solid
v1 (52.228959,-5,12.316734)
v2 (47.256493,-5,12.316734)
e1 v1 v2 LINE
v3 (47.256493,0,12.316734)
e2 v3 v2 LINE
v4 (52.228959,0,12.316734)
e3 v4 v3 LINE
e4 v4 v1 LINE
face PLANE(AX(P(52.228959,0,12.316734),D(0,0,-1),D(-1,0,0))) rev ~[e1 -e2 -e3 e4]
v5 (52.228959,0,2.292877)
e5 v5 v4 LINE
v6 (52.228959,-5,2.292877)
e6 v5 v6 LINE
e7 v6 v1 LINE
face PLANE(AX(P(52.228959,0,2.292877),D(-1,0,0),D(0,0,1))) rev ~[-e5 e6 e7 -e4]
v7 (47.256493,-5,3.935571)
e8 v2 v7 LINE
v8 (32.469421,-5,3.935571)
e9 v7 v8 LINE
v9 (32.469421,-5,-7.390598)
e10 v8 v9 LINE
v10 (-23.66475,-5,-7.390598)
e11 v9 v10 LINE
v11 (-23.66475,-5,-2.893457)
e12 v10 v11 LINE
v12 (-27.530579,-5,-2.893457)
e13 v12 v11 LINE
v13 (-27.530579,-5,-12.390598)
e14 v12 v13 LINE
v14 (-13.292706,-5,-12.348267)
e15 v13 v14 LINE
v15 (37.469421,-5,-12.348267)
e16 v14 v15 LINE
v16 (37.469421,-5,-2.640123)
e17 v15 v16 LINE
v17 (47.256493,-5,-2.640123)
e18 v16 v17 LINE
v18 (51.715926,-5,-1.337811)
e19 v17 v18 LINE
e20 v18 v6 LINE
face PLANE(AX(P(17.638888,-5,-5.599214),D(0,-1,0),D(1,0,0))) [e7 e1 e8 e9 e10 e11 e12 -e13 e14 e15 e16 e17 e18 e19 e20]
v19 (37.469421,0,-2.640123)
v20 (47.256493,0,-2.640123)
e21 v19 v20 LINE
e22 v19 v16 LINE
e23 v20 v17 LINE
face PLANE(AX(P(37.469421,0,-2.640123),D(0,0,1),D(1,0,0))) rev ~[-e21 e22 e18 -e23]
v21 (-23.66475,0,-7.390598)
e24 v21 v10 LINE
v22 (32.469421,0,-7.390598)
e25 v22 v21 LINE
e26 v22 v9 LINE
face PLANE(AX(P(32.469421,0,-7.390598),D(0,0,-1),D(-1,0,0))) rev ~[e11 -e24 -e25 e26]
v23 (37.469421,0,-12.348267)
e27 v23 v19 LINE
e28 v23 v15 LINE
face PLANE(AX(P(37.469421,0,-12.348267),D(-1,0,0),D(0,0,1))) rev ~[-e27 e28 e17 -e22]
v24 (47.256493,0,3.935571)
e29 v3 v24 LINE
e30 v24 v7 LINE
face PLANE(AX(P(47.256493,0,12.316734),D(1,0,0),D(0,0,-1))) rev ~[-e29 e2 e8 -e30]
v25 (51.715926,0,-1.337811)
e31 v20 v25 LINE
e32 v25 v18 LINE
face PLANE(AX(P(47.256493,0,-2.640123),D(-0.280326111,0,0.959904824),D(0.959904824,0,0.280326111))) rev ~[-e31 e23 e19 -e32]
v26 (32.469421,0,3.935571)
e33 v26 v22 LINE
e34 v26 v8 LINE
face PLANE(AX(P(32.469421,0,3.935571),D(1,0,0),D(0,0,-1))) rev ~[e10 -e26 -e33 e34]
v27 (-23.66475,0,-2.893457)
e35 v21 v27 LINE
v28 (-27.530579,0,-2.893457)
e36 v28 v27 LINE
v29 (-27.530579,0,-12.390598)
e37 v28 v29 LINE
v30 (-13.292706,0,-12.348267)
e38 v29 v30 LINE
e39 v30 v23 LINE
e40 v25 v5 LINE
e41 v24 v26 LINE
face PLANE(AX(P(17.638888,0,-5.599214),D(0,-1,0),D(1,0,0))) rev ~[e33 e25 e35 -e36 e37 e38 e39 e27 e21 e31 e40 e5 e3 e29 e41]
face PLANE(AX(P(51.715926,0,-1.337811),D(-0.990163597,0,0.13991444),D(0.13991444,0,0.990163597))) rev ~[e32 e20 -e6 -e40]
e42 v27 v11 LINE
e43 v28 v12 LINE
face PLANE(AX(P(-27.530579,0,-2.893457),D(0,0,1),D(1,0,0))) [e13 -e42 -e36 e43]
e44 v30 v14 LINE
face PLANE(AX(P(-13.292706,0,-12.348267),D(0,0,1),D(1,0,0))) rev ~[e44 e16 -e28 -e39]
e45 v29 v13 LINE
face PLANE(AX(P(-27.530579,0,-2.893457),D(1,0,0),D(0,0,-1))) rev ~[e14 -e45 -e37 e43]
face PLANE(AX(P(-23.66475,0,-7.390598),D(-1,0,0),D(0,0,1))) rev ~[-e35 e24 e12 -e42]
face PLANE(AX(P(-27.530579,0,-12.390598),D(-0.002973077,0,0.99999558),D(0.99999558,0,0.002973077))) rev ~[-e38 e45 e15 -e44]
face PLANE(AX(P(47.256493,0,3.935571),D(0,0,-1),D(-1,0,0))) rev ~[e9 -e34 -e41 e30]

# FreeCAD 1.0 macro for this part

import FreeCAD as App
import Part
import Sketcher
Q = App.Units.Quantity

doc = App.newDocument("Part")
body = doc.addObject("PartDesign::Body", "Body")

sketch1 = body.newObject("Sketcher::SketchObject", "Sketch")
sketch1.AttachmentSupport = (doc.getObject("XZ_Plane"), [""])
sketch1.MapMode = "FlatFace"
sketch1.addGeometry(Part.LineSegment(App.Vector(-27.530579, -12.390598, 0), App.Vector(-13.292706, -12.348267, 0)), False)
sketch1.addGeometry(Part.LineSegment(App.Vector(-13.292706, -12.348267, 0), App.Vector(37.469421, -12.348267, 0)), False)
sketch1.addGeometry(Part.LineSegment(App.Vector(37.469421, -12.348267, 0), App.Vector(37.469421, -2.640123, 0)), False)
sketch1.addGeometry(Part.LineSegment(App.Vector(37.469421, -2.640123, 0), App.Vector(47.256493, -2.640123, 0)), False)
sketch1.addGeometry(Part.LineSegment(App.Vector(47.256493, -2.640123, 0), App.Vector(51.715926, -1.337811, 0)), False)
sketch1.addGeometry(Part.LineSegment(App.Vector(51.715926, -1.337811, 0), App.Vector(52.228959, 2.292877, 0)), False)
sketch1.addGeometry(Part.LineSegment(App.Vector(52.228959, 2.292877, 0), App.Vector(52.228959, 12.316734, 0)), False)
sketch1.addGeometry(Part.LineSegment(App.Vector(52.228959, 12.316734, 0), App.Vector(47.256493, 12.316734, 0)), False)
sketch1.addGeometry(Part.LineSegment(App.Vector(47.256493, 12.316734, 0), App.Vector(47.256493, 3.935571, 0)), False)
sketch1.addGeometry(Part.LineSegment(App.Vector(47.256493, 3.935571, 0), App.Vector(32.469421, 3.935571, 0)), False)
sketch1.addGeometry(Part.LineSegment(App.Vector(32.469421, 3.935571, 0), App.Vector(32.469421, -7.390598, 0)), False)
sketch1.addGeometry(Part.LineSegment(App.Vector(32.469421, -7.390598, 0), App.Vector(-23.66475, -7.390598, 0)), False)
sketch1.addGeometry(Part.LineSegment(App.Vector(-23.66475, -7.390598, 0), App.Vector(-23.66475, -2.893457, 0)), False)
sketch1.addGeometry(Part.LineSegment(App.Vector(-23.66475, -2.893457, 0), App.Vector(-27.530579, -2.893457, 0)), False)
sketch1.addGeometry(Part.LineSegment(App.Vector(-27.530579, -2.893457, 0), App.Vector(-27.530579, -12.390598, 0)), False)
sketch1.addConstraint(Sketcher.Constraint("Coincident", 0, 2, 1, 1))
sketch1.addConstraint(Sketcher.Constraint("Coincident", 1, 2, 2, 1))
sketch1.addConstraint(Sketcher.Constraint("Coincident", 2, 2, 3, 1))
sketch1.addConstraint(Sketcher.Constraint("Coincident", 3, 2, 4, 1))
sketch1.addConstraint(Sketcher.Constraint("Coincident", 4, 2, 5, 1))
sketch1.addConstraint(Sketcher.Constraint("Coincident", 5, 2, 6, 1))
sketch1.addConstraint(Sketcher.Constraint("Coincident", 6, 2, 7, 1))
sketch1.addConstraint(Sketcher.Constraint("Coincident", 7, 2, 8, 1))
sketch1.addConstraint(Sketcher.Constraint("Coincident", 8, 2, 9, 1))
sketch1.addConstraint(Sketcher.Constraint("Coincident", 9, 2, 10, 1))
sketch1.addConstraint(Sketcher.Constraint("Coincident", 10, 2, 11, 1))
sketch1.addConstraint(Sketcher.Constraint("Coincident", 11, 2, 12, 1))
sketch1.addConstraint(Sketcher.Constraint("Coincident", 12, 2, 13, 1))
sketch1.addConstraint(Sketcher.Constraint("Coincident", 13, 2, 14, 1))
sketch1.addConstraint(Sketcher.Constraint("Coincident", 14, 2, 0, 1))
sketch1.addConstraint(Sketcher.Constraint("Horizontal", 1))
sketch1.addConstraint(Sketcher.Constraint("Vertical", 2))
sketch1.addConstraint(Sketcher.Constraint("Horizontal", 3))
sketch1.addConstraint(Sketcher.Constraint("Vertical", 6))
sketch1.addConstraint(Sketcher.Constraint("Horizontal", 7))
sketch1.addConstraint(Sketcher.Constraint("Vertical", 8))
sketch1.addConstraint(Sketcher.Constraint("Horizontal", 9))
sketch1.addConstraint(Sketcher.Constraint("Vertical", 10))
sketch1.addConstraint(Sketcher.Constraint("Horizontal", 11))
sketch1.addConstraint(Sketcher.Constraint("Vertical", 12))
sketch1.addConstraint(Sketcher.Constraint("Horizontal", 13))
sketch1.addConstraint(Sketcher.Constraint("Vertical", 14))
sketch1.addConstraint(Sketcher.Constraint("Vertical", 3, 2, 7, 2))
sketch1.addConstraint(Sketcher.Constraint("DistanceX", 9, 2, 2, 2, Q("5 mm")))
sketch1.addConstraint(Sketcher.Constraint("DistanceX", 13, 2, 10, 2, Q("60 mm")))
sketch1.addConstraint(Sketcher.Constraint("DistanceY", 14, 2, 11, 2, Q("5 mm")))
sketch1.addConstraint(Sketcher.Constraint("DistanceY", 3, 2, 5, 2, Q("4.933 mm")))
sketch1.addConstraint(Sketcher.Constraint("DistanceY", 1, 2, 6, 2, Q("24.665001 mm")))
sketch1.addConstraint(Sketcher.Constraint("DistanceX", 11, 2, 11, 1, Q("56.134171 mm")))
sketch1.addConstraint(Sketcher.Constraint("DistanceY", 10, 2, 10, 1, Q("11.326169 mm")))
sketch1.addConstraint(Sketcher.Constraint("DistanceY", 12, 1, 12, 2, Q("4.49714 mm")))
sketch1.addConstraint(Sketcher.Constraint("DistanceX", 0, 2, 3, 2, Q("60.549199 mm")))
sketch1.addConstraint(Sketcher.Constraint("DistanceX", 1, 1, 1, 2, Q("50.762127 mm")))
sketch1.addConstraint(Sketcher.Constraint("DistanceX", 7, 2, 7, 1, Q("4.972465 mm")))
sketch1.addConstraint(Sketcher.Constraint("DistanceY", 2, 1, 2, 2, Q("9.708144 mm")))
sketch1.addConstraint(Sketcher.Constraint("DistanceY", 8, 2, 8, 1, Q("8.381162 mm")))
sketch1.addConstraint(Sketcher.Constraint("DistanceX", -1, 1, 1, 2, Q("37.469421 mm")))
sketch1.addConstraint(Sketcher.Constraint("DistanceY", 4, 2, -1, 1, Q("1.337811 mm")))
sketch1.addConstraint(Sketcher.Constraint("DistanceY", -1, 1, 8, 2, Q("3.935571 mm")))
sketch1.addConstraint(Sketcher.Constraint("Distance", 4, Q("4.645704 mm")))
pad1 = body.newObject("PartDesign::Pad", "Pad")
pad1.Profile = sketch1
pad1.Length = 5

doc.recompute()
